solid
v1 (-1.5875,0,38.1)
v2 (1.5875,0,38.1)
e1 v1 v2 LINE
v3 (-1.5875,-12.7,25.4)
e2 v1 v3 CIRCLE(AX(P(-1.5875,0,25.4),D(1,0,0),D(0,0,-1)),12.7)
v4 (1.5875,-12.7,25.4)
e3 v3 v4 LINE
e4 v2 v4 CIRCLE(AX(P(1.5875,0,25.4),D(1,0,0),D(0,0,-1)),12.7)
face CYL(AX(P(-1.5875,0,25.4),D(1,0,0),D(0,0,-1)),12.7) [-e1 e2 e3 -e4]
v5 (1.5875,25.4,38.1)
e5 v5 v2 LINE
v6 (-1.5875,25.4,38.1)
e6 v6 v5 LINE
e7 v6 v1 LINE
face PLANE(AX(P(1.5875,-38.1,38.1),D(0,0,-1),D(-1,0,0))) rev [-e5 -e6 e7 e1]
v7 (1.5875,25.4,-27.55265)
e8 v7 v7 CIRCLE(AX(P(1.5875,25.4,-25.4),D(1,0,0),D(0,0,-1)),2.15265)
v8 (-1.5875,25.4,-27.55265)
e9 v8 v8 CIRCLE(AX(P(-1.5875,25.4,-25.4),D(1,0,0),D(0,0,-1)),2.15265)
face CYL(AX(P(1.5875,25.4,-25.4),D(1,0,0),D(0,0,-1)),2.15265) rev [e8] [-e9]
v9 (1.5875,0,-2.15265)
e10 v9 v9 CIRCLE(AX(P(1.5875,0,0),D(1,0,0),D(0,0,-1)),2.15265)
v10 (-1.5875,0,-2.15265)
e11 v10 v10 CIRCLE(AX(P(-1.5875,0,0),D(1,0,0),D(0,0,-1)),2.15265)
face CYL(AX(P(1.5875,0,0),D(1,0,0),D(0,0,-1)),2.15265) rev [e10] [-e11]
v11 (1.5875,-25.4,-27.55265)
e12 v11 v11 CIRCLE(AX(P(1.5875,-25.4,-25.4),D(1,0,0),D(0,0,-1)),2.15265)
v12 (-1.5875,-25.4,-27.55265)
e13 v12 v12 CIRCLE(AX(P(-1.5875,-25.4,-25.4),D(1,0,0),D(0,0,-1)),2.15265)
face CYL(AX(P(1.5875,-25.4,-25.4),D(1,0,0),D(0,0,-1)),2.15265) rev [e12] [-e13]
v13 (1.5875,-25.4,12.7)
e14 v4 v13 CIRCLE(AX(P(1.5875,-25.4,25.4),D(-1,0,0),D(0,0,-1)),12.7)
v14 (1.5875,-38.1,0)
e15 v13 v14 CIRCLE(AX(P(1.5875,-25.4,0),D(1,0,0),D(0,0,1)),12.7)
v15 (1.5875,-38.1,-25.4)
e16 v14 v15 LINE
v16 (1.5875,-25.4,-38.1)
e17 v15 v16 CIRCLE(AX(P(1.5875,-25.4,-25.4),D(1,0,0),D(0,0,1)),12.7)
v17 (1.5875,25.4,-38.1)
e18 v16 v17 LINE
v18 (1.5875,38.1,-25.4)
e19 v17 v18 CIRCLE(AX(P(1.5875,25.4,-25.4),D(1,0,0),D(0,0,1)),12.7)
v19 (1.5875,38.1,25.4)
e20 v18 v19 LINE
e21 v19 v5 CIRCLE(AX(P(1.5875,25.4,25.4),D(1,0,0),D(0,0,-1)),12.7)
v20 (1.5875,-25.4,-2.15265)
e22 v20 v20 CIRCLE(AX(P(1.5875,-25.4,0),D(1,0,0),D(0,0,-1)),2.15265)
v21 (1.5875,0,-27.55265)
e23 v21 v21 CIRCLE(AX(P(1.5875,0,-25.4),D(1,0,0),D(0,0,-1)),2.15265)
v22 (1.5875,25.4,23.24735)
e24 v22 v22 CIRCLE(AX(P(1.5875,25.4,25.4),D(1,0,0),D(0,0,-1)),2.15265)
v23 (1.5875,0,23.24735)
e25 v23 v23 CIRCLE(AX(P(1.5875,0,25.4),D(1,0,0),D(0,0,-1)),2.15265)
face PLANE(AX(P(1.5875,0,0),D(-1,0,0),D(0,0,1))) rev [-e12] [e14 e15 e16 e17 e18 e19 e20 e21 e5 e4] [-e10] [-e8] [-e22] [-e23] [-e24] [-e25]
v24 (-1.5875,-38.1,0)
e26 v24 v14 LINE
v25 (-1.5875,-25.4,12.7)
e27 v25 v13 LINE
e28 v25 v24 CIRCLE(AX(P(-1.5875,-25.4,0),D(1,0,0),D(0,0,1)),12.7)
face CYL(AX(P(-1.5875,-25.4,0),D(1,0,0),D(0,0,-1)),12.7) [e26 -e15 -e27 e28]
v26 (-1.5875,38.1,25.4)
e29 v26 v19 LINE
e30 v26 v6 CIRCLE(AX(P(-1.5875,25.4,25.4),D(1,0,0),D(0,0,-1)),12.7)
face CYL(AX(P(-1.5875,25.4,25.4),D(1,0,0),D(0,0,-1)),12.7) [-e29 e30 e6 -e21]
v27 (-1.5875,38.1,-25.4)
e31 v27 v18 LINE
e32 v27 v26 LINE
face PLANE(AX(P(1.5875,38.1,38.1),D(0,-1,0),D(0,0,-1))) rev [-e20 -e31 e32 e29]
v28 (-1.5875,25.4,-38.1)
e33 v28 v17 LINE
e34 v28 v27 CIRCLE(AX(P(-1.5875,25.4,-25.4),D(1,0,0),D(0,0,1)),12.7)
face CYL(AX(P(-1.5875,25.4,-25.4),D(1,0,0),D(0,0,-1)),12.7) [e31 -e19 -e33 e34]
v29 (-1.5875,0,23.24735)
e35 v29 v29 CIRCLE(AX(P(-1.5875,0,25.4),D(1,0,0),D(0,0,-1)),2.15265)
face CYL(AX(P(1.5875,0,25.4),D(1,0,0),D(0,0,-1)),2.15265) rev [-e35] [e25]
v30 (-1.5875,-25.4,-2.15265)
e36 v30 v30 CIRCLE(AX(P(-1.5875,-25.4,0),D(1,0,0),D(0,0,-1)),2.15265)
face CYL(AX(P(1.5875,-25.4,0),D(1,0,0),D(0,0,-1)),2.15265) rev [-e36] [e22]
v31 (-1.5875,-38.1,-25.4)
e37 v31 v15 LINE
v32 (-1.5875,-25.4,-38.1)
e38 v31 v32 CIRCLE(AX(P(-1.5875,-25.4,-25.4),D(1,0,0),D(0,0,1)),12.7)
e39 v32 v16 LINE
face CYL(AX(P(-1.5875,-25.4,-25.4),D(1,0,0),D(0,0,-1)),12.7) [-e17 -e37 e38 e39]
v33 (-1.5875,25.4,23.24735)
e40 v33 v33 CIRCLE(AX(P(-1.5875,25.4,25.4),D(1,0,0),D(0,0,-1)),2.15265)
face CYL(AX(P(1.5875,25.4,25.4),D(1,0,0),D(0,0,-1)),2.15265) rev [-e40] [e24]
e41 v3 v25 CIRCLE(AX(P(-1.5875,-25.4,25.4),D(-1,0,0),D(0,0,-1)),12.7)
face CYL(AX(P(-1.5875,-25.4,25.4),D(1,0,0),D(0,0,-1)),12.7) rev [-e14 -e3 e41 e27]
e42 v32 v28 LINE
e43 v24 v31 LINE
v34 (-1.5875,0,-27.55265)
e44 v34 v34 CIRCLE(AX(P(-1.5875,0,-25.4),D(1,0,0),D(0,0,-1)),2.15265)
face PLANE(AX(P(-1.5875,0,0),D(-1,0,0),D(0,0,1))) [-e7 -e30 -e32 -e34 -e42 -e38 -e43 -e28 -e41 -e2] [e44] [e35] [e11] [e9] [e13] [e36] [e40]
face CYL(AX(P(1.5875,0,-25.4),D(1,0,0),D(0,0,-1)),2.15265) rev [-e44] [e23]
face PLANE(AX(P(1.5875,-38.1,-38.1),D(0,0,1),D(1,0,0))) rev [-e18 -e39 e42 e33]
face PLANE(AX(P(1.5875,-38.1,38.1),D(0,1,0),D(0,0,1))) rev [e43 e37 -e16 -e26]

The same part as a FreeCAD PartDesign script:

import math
import FreeCAD as App
import Part
import Sketcher

V = App.Vector
Q = App.Units.Quantity

doc = App.newDocument("Part")
body = doc.addObject("PartDesign::Body", "Body")

# Sketch on YZ plane
sketch1 = body.newObject("Sketcher::SketchObject", "Sketch")
sketch1.AttachmentSupport = (doc.getObject("YZ_Plane"), [""])
sketch1.MapMode = "FlatFace"
sketch1.addGeometry(Part.LineSegment(V(38.1, 38.1, 0), V(-38.1, 38.1, 0)), False)
sketch1.addGeometry(Part.LineSegment(V(-38.1, 38.1, 0), V(-38.1, -38.1, 0)), False)
sketch1.addGeometry(Part.LineSegment(V(-38.1, -38.1, 0), V(38.1, -38.1, 0)), False)
sketch1.addGeometry(Part.LineSegment(V(38.1, -38.1, 0), V(38.1, 38.1, 0)), False)
sketch1.addConstraint(Sketcher.Constraint("Coincident", 0, 2, 1, 1))
sketch1.addConstraint(Sketcher.Constraint("Coincident", 1, 2, 2, 1))
sketch1.addConstraint(Sketcher.Constraint("Coincident", 2, 2, 3, 1))
sketch1.addConstraint(Sketcher.Constraint("Coincident", 3, 2, 0, 1))
sketch1.addConstraint(Sketcher.Constraint("Horizontal", 0))
sketch1.addConstraint(Sketcher.Constraint("Vertical", 1))
sketch1.addConstraint(Sketcher.Constraint("Horizontal", 2))
sketch1.addConstraint(Sketcher.Constraint("Vertical", 3))
sketch1.addConstraint(Sketcher.Constraint("Symmetric", 0, 2, 2, 2, -1, 1))
sketch1.addConstraint(Sketcher.Constraint("Equal", 2, 1))
sketch1.addConstraint(Sketcher.Constraint("DistanceX", 0, 2, 0, 1, Q("3 in")))
pad1 = body.newObject("PartDesign::Pad", "Pad")
pad1.Profile = sketch1
pad1.Length = Q("0.125 in")
pad1.Midplane = True

# Sketch on YZ plane
sketch2 = body.newObject("Sketcher::SketchObject", "Sketch001")
sketch2.AttachmentSupport = (doc.getObject("YZ_Plane"), [""])
sketch2.MapMode = "FlatFace"
sketch2.AttachmentOffset = App.Placement(V(0, 0, 0.0625 * 25.4), App.Rotation())
sketch2.addGeometry(Part.Circle(V(25.4, 25.4, 0), V(0, 0, 1), 2.15265), False)
sketch2.addGeometry(Part.Circle(V(0, 25.4, 0), V(0, 0, 1), 2.15265), False)
sketch2.addGeometry(Part.Circle(V(25.4, -25.4, 0), V(0, 0, 1), 2.15265), False)
sketch2.addGeometry(Part.Circle(V(0, 0, 0), V(0, 0, 1), 2.15265), False)
sketch2.addGeometry(Part.Circle(V(0, -25.4, 0), V(0, 0, 1), 2.15265), False)
sketch2.addGeometry(Part.Circle(V(-25.4, 0, 0), V(0, 0, 1), 2.15265), False)
sketch2.addGeometry(Part.Circle(V(-25.4, -25.4, 0), V(0, 0, 1), 2.15265), False)
sketch2.addConstraint(Sketcher.Constraint("Coincident", 3, 3, -1, 1))
sketch2.addConstraint(Sketcher.Constraint("Equal", 0, 1))
sketch2.addConstraint(Sketcher.Constraint("Equal", 1, 2))
sketch2.addConstraint(Sketcher.Constraint("Equal", 2, 3))
sketch2.addConstraint(Sketcher.Constraint("Equal", 3, 4))
sketch2.addConstraint(Sketcher.Constraint("Equal", 4, 5))
sketch2.addConstraint(Sketcher.Constraint("Equal", 5, 6))
sketch2.addConstraint(Sketcher.Constraint("Symmetric", 1, 3, 4, 3, -1, 1))
sketch2.addConstraint(Sketcher.Constraint("Symmetric", 0, 3, 6, 3, -1, 1))
sketch2.addConstraint(Sketcher.Constraint("Symmetric", 2, 3, 6, 3, -2))
sketch2.addConstraint(Sketcher.Constraint("PointOnObject", 1, 3, -2))
sketch2.addConstraint(Sketcher.Constraint("PointOnObject", 5, 3, -1))
sketch2.addConstraint(Sketcher.Constraint("Horizontal", 0, 3, 1, 3))
sketch2.addConstraint(Sketcher.Constraint("Vertical", 5, 3, 6, 3))
sketch2.addConstraint(Sketcher.Constraint("DistanceX", -1, 1, 0, 3, Q("1 in")))
sketch2.addConstraint(Sketcher.Constraint("DistanceY", -1, 1, 0, 3, Q("1 in")))
sketch2.addConstraint(Sketcher.Constraint("Diameter", 0, Q("0.1695 in")))
doc.recompute()
hole = body.newObject("PartDesign::Hole", "Hole")
hole.Profile = sketch2
hole.ThreadType = "None"
hole.Diameter = Q("0.1695 in")
hole.DepthType = "ThroughAll"

# Sketch on YZ plane
sketch3 = body.newObject("Sketcher::SketchObject", "Sketch002")
sketch3.AttachmentSupport = (doc.getObject("YZ_Plane"), [""])
sketch3.MapMode = "FlatFace"
sketch3.AttachmentOffset = App.Placement(V(0, 0, 0.0625 * 25.4), App.Rotation())
sketch3.addGeometry(Part.LineSegment(V(50.8, 50.8, 0), V(-50.8, 50.8, 0)), False)
sketch3.addGeometry(Part.LineSegment(V(-50.8, 50.8, 0), V(-50.8, -50.8, 0)), False)
sketch3.addGeometry(Part.LineSegment(V(-50.8, -50.8, 0), V(50.8, -50.8, 0)), False)
sketch3.addGeometry(Part.LineSegment(V(50.8, -50.8, 0), V(50.8, 50.8, 0)), False)
sketch3.addGeometry(Part.ArcOfCircle(Part.Circle(V(0, 25.4, 0), V(0, 0, 1), 12.7), math.radians(90), math.radians(180)), False)
sketch3.addGeometry(Part.LineSegment(V(0, 38.1, 0), V(25.4, 38.1, 0)), False)
sketch3.addGeometry(Part.ArcOfCircle(Part.Circle(V(25.4, 25.4, 0), V(0, 0, 1), 12.7), math.radians(0), math.radians(90)), False)
sketch3.addGeometry(Part.LineSegment(V(38.1, 25.4, 0), V(38.1, -25.4, 0)), False)
sketch3.addGeometry(Part.ArcOfCircle(Part.Circle(V(25.4, -25.4, 0), V(0, 0, 1), 12.7), math.radians(-90), math.radians(0)), False)
sketch3.addGeometry(Part.LineSegment(V(25.4, -38.1, 0), V(-25.4, -38.1, 0)), False)
sketch3.addGeometry(Part.ArcOfCircle(Part.Circle(V(-25.4, -25.4, 0), V(0, 0, 1), 12.7), math.radians(180), math.radians(270)), False)
sketch3.addGeometry(Part.LineSegment(V(-38.1, -25.4, 0), V(-38.1, 0, 0)), False)
sketch3.addGeometry(Part.ArcOfCircle(Part.Circle(V(-25.4, 0, 0), V(0, 0, 1), 12.7), math.radians(90), math.radians(180)), False)
sketch3.addGeometry(Part.ArcOfCircle(Part.Circle(V(-25.4, 25.4, 0), V(0, 0, 1), 12.7), math.radians(-90), math.radians(0)), False)
sketch3.addConstraint(Sketcher.Constraint("Coincident", 0, 2, 1, 1))
sketch3.addConstraint(Sketcher.Constraint("Coincident", 1, 2, 2, 1))
sketch3.addConstraint(Sketcher.Constraint("Coincident", 2, 2, 3, 1))
sketch3.addConstraint(Sketcher.Constraint("Coincident", 3, 2, 0, 1))
sketch3.addConstraint(Sketcher.Constraint("Tangent", 4, 1, 5, 1))
sketch3.addConstraint(Sketcher.Constraint("Tangent", 5, 2, 6, 2))
sketch3.addConstraint(Sketcher.Constraint("Tangent", 6, 1, 7, 1))
sketch3.addConstraint(Sketcher.Constraint("Tangent", 7, 2, 8, 2))
sketch3.addConstraint(Sketcher.Constraint("Tangent", 8, 1, 9, 1))
sketch3.addConstraint(Sketcher.Constraint("Tangent", 9, 2, 10, 2))
sketch3.addConstraint(Sketcher.Constraint("Tangent", 10, 1, 11, 1))
sketch3.addConstraint(Sketcher.Constraint("Tangent", 11, 2, 12, 2))
sketch3.addConstraint(Sketcher.Constraint("Tangent", 12, 1, 13, 1))
sketch3.addConstraint(Sketcher.Constraint("Tangent", 13, 2, 4, 2))
sketch3.addConstraint(Sketcher.Constraint("Horizontal", 0))
sketch3.addConstraint(Sketcher.Constraint("Vertical", 1))
sketch3.addConstraint(Sketcher.Constraint("Horizontal", 2))
sketch3.addConstraint(Sketcher.Constraint("Vertical", 3))
sketch3.addConstraint(Sketcher.Constraint("Horizontal", 5))
sketch3.addConstraint(Sketcher.Constraint("Vertical", 7))
sketch3.addConstraint(Sketcher.Constraint("Horizontal", 9))
sketch3.addConstraint(Sketcher.Constraint("Vertical", 11))
sketch3.addConstraint(Sketcher.Constraint("Equal", 4, 6))
sketch3.addConstraint(Sketcher.Constraint("Equal", 6, 8))
sketch3.addConstraint(Sketcher.Constraint("Equal", 8, 10))
sketch3.addConstraint(Sketcher.Constraint("Equal", 10, 12))
sketch3.addConstraint(Sketcher.Constraint("Equal", 12, 13))
sketch3.addConstraint(Sketcher.Constraint("Symmetric", 6, 3, 10, 3, -1, 1))
sketch3.addConstraint(Sketcher.Constraint("Symmetric", 8, 3, 13, 3, -1, 1))
sketch3.addConstraint(Sketcher.Constraint("Symmetric", 0, 2, 2, 2, -1, 1))
sketch3.addConstraint(Sketcher.Constraint("PointOnObject", 4, 3, -2))
sketch3.addConstraint(Sketcher.Constraint("PointOnObject", 12, 3, -1))
sketch3.addConstraint(Sketcher.Constraint("Equal", 2, 1))
sketch3.addConstraint(Sketcher.Constraint("Radius", 4, Q("0.5 in")))
sketch3.addConstraint(Sketcher.Constraint("DistanceX", 0, 2, 0, 1, Q("4 in")))
pocket1 = body.newObject("PartDesign::Pocket", "Pocket")
pocket1.Profile = sketch3
pocket1.Type = "ThroughAll"

doc.recompute()
